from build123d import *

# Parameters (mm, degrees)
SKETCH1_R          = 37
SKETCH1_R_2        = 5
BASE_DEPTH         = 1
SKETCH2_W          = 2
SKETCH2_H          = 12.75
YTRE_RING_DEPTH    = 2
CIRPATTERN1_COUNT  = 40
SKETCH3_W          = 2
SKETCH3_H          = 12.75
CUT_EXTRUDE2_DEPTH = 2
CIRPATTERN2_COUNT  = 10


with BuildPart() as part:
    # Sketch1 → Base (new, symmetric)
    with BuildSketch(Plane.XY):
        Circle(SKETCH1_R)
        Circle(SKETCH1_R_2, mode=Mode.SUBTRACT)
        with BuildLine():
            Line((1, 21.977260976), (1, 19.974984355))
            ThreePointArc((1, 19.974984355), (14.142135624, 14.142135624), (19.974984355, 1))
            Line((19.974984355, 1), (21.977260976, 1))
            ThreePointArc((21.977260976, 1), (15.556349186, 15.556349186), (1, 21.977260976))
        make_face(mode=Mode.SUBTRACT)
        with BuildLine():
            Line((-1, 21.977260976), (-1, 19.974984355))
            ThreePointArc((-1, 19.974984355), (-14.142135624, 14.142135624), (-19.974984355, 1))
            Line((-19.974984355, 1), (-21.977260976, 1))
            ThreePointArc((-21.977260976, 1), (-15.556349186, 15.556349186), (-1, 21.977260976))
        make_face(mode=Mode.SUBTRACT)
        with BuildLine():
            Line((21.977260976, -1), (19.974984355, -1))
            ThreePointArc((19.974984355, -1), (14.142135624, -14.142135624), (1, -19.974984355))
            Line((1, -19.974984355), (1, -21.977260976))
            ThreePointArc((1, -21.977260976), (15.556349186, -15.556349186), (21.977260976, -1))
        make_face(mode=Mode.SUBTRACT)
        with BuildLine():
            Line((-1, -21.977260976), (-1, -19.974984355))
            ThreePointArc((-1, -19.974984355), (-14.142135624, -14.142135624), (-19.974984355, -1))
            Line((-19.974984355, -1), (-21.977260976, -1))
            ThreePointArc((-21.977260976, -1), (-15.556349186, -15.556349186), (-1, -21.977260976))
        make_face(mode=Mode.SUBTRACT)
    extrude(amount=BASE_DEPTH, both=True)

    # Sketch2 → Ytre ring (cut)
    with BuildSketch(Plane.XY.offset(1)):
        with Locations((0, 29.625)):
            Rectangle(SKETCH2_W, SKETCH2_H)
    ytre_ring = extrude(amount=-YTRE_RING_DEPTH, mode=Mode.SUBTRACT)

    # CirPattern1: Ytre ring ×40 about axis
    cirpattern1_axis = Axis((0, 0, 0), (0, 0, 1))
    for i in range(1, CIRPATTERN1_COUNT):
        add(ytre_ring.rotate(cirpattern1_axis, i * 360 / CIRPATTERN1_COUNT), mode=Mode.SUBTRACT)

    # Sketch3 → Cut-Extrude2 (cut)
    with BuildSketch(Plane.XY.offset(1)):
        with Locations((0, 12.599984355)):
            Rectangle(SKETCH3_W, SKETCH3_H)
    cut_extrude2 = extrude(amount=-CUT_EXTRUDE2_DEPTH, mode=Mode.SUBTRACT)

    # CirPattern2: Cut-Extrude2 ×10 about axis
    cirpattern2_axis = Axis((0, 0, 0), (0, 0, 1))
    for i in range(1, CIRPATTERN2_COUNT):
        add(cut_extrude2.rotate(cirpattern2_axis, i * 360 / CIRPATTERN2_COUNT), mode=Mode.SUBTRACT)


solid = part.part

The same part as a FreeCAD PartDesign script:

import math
import FreeCAD as App
import Part
import Sketcher

V = App.Vector


def add_polygon(sketch, points):
    """Adds a closed chain of lines whose ends are joined by coincident constraints."""
    first, n = sketch.GeometryCount, len(points)
    for a, b in zip(points, points[1:] + points[:1]):
        sketch.addGeometry(Part.LineSegment(App.Vector(*a, 0), App.Vector(*b, 0)), False)
    for i in range(n):
        sketch.addConstraint(Sketcher.Constraint("Coincident", first + i, 2, first + (i + 1) % n, 1))

doc = App.newDocument("Part")
body = doc.addObject("PartDesign::Body", "Body")

sketch1 = body.newObject("Sketcher::SketchObject", "Sketch")
sketch1.AttachmentSupport = (doc.getObject("XY_Plane"), [""])
sketch1.MapMode = "FlatFace"
sketch1.addGeometry([
    Part.Circle(V(0, 0, 0), V(0, 0, 1), 37),
    Part.LineSegment(V(-1, -20, 0), V(-1, -22, 0)),
    Part.ArcOfCircle(Part.Circle(V(0, 0, 0), V(0, 0, 1), 22), math.radians(-177), math.radians(-93)),
    Part.LineSegment(V(-22, -1, 0), V(-20, -1, 0)),
    Part.ArcOfCircle(Part.Circle(V(0, 0, 0), V(0, 0, 1), 20), math.radians(-177), math.radians(-93)),
    Part.LineSegment(V(20, -1, 0), V(22, -1, 0)),
    Part.ArcOfCircle(Part.Circle(V(0, 0, 0), V(0, 0, 1), 22), math.radians(-87), math.radians(-3)),
    Part.LineSegment(V(1, -22, 0), V(1, -20, 0)),
    Part.ArcOfCircle(Part.Circle(V(0, 0, 0), V(0, 0, 1), 20), math.radians(-87), math.radians(-3)),
    Part.ArcOfCircle(Part.Circle(V(0, 0, 0), V(0, 0, 1), 22), math.radians(93), math.radians(177)),
    Part.LineSegment(V(-1, 22, 0), V(-1, 20, 0)),
    Part.ArcOfCircle(Part.Circle(V(0, 0, 0), V(0, 0, 1), 20), math.radians(93), math.radians(177)),
    Part.LineSegment(V(-20, 1, 0), V(-22, 1, 0)),
    Part.Circle(V(0, 0, 0), V(0, 0, 1), 5),
    Part.LineSegment(V(1, 20, 0), V(1, 22, 0)),
    Part.ArcOfCircle(Part.Circle(V(0, 0, 0), V(0, 0, 1), 22), math.radians(3), math.radians(87)),
    Part.LineSegment(V(22, 1, 0), V(20, 1, 0)),
    Part.ArcOfCircle(Part.Circle(V(0, 0, 0), V(0, 0, 1), 20), math.radians(3), math.radians(87)),
], False)
sketch1.addConstraint([
    Sketcher.Constraint("Coincident", 1, 2, 2, 2),
    Sketcher.Constraint("Coincident", 2, 1, 3, 1),
    Sketcher.Constraint("Coincident", 3, 2, 4, 1),
    Sketcher.Constraint("Coincident", 4, 2, 1, 1),
    Sketcher.Constraint("Coincident", 5, 2, 6, 2),
    Sketcher.Constraint("Coincident", 6, 1, 7, 1),
    Sketcher.Constraint("Coincident", 7, 2, 8, 1),
    Sketcher.Constraint("Coincident", 8, 2, 5, 1),
    Sketcher.Constraint("Coincident", 9, 1, 10, 1),
    Sketcher.Constraint("Coincident", 10, 2, 11, 1),
    Sketcher.Constraint("Coincident", 11, 2, 12, 1),
    Sketcher.Constraint("Coincident", 12, 2, 9, 2),
    Sketcher.Constraint("Coincident", 14, 2, 15, 2),
    Sketcher.Constraint("Coincident", 15, 1, 16, 1),
    Sketcher.Constraint("Coincident", 16, 2, 17, 1),
    Sketcher.Constraint("Coincident", 17, 2, 14, 1),
    Sketcher.Constraint("Vertical", 1),
    Sketcher.Constraint("Horizontal", 3),
    Sketcher.Constraint("Horizontal", 5),
    Sketcher.Constraint("Vertical", 7),
    Sketcher.Constraint("Vertical", 10),
    Sketcher.Constraint("Horizontal", 12),
    Sketcher.Constraint("Vertical", 14),
    Sketcher.Constraint("Horizontal", 16),
    Sketcher.Constraint("Coincident", 0, 3, -1, 1),
    Sketcher.Constraint("Coincident", 2, 3, -1, 1),
    Sketcher.Constraint("Coincident", 4, 3, -1, 1),
    Sketcher.Constraint("Coincident", 6, 3, -1, 1),
    Sketcher.Constraint("Coincident", 8, 3, -1, 1),
    Sketcher.Constraint("Coincident", 9, 3, -1, 1),
    Sketcher.Constraint("Coincident", 11, 3, -1, 1),
    Sketcher.Constraint("Coincident", 13, 3, -1, 1),
    Sketcher.Constraint("Coincident", 15, 3, -1, 1),
    Sketcher.Constraint("Coincident", 17, 3, -1, 1),
    Sketcher.Constraint("Equal", 2, 6),
    Sketcher.Constraint("Equal", 4, 8),
    Sketcher.Constraint("Equal", 6, 9),
    Sketcher.Constraint("Equal", 8, 11),
    Sketcher.Constraint("Equal", 9, 15),
    Sketcher.Constraint("Equal", 11, 17),
    Sketcher.Constraint("Horizontal", 3, 2, 5, 2),
    Sketcher.Constraint("Horizontal", 1, 2, 6, 1),
    Sketcher.Constraint("Horizontal", 9, 1, 14, 2),
    Sketcher.Constraint("Horizontal", 12, 2, 15, 1),
    Sketcher.Constraint("Vertical", 4, 2, 9, 1),
    Sketcher.Constraint("Vertical", 3, 2, 11, 2),
    Sketcher.Constraint("Diameter", 0, 74.0),
    Sketcher.Constraint("Diameter", 13, 10.0),
    Sketcher.Constraint("Radius", 2, 22.0),
    Sketcher.Constraint("Radius", 4, 20.0),
    Sketcher.Constraint("DistanceX", 1, 2, -1, 1, 1.0),
    Sketcher.Constraint("DistanceY", 2, 1, -1, 1, 1.0),
])
pad1 = body.newObject("PartDesign::Pad", "Pad")
pad1.Profile = sketch1
pad1.Length = 2
pad1.Midplane = True

sketch2 = body.newObject("Sketcher::SketchObject", "Sketch001")
sketch2.AttachmentSupport = (doc.getObject("XY_Plane"), [""])
sketch2.MapMode = "FlatFace"
sketch2.AttachmentOffset = App.Placement(V(0, 0, 1), App.Rotation())
add_polygon(sketch2, [(-1, 36), (-1, 23.2), (1, 23.2), (1, 36)])
sketch2.addConstraint([
    Sketcher.Constraint("Vertical", 0),
    Sketcher.Constraint("Horizontal", 1),
    Sketcher.Constraint("Vertical", 2),
    Sketcher.Constraint("Horizontal", 3),
    Sketcher.Constraint("DistanceX", 1, 1, 1, 2, 2.0),
    Sketcher.Constraint("DistanceX", 0, 2, -1, 1, 1.0),
    Sketcher.Constraint("DistanceY", -1, 1, 2, 2, 36.0),
    Sketcher.Constraint("DistanceY", 0, 2, 0, 1, 12.75),
])
pocket1 = body.newObject("PartDesign::Pocket", "Pocket")
pocket1.Profile = sketch2
pocket1.Length = 2
doc.recompute()

polarpattern = body.newObject("PartDesign::PolarPattern", "PolarPattern")
polarpattern.Originals = [pocket1]
polarpattern.Axis = (doc.getObject("Z_Axis"), [""])
polarpattern.Angle = 360
polarpattern.Occurrences = 40
body.Tip = polarpattern

sketch3 = body.newObject("Sketcher::SketchObject", "Sketch002")
sketch3.AttachmentSupport = (doc.getObject("XY_Plane"), [""])
sketch3.MapMode = "FlatFace"
sketch3.AttachmentOffset = App.Placement(V(0, 0, 1), App.Rotation())
add_polygon(sketch3, [(-1, 19), (-1, 6.2), (1, 6.2), (1, 19)])
sketch3.addConstraint([
    Sketcher.Constraint("Vertical", 0),
    Sketcher.Constraint("Horizontal", 1),
    Sketcher.Constraint("Vertical", 2),
    Sketcher.Constraint("Horizontal", 3),
    Sketcher.Constraint("DistanceX", 1, 1, 1, 2, 2.0),
    Sketcher.Constraint("DistanceX", 0, 2, -1, 1, 1.0),
    Sketcher.Constraint("DistanceY", 0, 2, 0, 1, 12.75),
    Sketcher.Constraint("DistanceY", -1, 1, 0, 2, 6.224984),
])
pocket2 = body.newObject("PartDesign::Pocket", "Pocket001")
pocket2.Profile = sketch3
pocket2.Length = 2
doc.recompute()

polarpattern2 = body.newObject("PartDesign::PolarPattern", "PolarPattern001")
polarpattern2.Originals = [pocket2]
polarpattern2.Axis = (doc.getObject("Z_Axis"), [""])
polarpattern2.Angle = 360
polarpattern2.Occurrences = 10
body.Tip = polarpattern2

doc.recompute()
